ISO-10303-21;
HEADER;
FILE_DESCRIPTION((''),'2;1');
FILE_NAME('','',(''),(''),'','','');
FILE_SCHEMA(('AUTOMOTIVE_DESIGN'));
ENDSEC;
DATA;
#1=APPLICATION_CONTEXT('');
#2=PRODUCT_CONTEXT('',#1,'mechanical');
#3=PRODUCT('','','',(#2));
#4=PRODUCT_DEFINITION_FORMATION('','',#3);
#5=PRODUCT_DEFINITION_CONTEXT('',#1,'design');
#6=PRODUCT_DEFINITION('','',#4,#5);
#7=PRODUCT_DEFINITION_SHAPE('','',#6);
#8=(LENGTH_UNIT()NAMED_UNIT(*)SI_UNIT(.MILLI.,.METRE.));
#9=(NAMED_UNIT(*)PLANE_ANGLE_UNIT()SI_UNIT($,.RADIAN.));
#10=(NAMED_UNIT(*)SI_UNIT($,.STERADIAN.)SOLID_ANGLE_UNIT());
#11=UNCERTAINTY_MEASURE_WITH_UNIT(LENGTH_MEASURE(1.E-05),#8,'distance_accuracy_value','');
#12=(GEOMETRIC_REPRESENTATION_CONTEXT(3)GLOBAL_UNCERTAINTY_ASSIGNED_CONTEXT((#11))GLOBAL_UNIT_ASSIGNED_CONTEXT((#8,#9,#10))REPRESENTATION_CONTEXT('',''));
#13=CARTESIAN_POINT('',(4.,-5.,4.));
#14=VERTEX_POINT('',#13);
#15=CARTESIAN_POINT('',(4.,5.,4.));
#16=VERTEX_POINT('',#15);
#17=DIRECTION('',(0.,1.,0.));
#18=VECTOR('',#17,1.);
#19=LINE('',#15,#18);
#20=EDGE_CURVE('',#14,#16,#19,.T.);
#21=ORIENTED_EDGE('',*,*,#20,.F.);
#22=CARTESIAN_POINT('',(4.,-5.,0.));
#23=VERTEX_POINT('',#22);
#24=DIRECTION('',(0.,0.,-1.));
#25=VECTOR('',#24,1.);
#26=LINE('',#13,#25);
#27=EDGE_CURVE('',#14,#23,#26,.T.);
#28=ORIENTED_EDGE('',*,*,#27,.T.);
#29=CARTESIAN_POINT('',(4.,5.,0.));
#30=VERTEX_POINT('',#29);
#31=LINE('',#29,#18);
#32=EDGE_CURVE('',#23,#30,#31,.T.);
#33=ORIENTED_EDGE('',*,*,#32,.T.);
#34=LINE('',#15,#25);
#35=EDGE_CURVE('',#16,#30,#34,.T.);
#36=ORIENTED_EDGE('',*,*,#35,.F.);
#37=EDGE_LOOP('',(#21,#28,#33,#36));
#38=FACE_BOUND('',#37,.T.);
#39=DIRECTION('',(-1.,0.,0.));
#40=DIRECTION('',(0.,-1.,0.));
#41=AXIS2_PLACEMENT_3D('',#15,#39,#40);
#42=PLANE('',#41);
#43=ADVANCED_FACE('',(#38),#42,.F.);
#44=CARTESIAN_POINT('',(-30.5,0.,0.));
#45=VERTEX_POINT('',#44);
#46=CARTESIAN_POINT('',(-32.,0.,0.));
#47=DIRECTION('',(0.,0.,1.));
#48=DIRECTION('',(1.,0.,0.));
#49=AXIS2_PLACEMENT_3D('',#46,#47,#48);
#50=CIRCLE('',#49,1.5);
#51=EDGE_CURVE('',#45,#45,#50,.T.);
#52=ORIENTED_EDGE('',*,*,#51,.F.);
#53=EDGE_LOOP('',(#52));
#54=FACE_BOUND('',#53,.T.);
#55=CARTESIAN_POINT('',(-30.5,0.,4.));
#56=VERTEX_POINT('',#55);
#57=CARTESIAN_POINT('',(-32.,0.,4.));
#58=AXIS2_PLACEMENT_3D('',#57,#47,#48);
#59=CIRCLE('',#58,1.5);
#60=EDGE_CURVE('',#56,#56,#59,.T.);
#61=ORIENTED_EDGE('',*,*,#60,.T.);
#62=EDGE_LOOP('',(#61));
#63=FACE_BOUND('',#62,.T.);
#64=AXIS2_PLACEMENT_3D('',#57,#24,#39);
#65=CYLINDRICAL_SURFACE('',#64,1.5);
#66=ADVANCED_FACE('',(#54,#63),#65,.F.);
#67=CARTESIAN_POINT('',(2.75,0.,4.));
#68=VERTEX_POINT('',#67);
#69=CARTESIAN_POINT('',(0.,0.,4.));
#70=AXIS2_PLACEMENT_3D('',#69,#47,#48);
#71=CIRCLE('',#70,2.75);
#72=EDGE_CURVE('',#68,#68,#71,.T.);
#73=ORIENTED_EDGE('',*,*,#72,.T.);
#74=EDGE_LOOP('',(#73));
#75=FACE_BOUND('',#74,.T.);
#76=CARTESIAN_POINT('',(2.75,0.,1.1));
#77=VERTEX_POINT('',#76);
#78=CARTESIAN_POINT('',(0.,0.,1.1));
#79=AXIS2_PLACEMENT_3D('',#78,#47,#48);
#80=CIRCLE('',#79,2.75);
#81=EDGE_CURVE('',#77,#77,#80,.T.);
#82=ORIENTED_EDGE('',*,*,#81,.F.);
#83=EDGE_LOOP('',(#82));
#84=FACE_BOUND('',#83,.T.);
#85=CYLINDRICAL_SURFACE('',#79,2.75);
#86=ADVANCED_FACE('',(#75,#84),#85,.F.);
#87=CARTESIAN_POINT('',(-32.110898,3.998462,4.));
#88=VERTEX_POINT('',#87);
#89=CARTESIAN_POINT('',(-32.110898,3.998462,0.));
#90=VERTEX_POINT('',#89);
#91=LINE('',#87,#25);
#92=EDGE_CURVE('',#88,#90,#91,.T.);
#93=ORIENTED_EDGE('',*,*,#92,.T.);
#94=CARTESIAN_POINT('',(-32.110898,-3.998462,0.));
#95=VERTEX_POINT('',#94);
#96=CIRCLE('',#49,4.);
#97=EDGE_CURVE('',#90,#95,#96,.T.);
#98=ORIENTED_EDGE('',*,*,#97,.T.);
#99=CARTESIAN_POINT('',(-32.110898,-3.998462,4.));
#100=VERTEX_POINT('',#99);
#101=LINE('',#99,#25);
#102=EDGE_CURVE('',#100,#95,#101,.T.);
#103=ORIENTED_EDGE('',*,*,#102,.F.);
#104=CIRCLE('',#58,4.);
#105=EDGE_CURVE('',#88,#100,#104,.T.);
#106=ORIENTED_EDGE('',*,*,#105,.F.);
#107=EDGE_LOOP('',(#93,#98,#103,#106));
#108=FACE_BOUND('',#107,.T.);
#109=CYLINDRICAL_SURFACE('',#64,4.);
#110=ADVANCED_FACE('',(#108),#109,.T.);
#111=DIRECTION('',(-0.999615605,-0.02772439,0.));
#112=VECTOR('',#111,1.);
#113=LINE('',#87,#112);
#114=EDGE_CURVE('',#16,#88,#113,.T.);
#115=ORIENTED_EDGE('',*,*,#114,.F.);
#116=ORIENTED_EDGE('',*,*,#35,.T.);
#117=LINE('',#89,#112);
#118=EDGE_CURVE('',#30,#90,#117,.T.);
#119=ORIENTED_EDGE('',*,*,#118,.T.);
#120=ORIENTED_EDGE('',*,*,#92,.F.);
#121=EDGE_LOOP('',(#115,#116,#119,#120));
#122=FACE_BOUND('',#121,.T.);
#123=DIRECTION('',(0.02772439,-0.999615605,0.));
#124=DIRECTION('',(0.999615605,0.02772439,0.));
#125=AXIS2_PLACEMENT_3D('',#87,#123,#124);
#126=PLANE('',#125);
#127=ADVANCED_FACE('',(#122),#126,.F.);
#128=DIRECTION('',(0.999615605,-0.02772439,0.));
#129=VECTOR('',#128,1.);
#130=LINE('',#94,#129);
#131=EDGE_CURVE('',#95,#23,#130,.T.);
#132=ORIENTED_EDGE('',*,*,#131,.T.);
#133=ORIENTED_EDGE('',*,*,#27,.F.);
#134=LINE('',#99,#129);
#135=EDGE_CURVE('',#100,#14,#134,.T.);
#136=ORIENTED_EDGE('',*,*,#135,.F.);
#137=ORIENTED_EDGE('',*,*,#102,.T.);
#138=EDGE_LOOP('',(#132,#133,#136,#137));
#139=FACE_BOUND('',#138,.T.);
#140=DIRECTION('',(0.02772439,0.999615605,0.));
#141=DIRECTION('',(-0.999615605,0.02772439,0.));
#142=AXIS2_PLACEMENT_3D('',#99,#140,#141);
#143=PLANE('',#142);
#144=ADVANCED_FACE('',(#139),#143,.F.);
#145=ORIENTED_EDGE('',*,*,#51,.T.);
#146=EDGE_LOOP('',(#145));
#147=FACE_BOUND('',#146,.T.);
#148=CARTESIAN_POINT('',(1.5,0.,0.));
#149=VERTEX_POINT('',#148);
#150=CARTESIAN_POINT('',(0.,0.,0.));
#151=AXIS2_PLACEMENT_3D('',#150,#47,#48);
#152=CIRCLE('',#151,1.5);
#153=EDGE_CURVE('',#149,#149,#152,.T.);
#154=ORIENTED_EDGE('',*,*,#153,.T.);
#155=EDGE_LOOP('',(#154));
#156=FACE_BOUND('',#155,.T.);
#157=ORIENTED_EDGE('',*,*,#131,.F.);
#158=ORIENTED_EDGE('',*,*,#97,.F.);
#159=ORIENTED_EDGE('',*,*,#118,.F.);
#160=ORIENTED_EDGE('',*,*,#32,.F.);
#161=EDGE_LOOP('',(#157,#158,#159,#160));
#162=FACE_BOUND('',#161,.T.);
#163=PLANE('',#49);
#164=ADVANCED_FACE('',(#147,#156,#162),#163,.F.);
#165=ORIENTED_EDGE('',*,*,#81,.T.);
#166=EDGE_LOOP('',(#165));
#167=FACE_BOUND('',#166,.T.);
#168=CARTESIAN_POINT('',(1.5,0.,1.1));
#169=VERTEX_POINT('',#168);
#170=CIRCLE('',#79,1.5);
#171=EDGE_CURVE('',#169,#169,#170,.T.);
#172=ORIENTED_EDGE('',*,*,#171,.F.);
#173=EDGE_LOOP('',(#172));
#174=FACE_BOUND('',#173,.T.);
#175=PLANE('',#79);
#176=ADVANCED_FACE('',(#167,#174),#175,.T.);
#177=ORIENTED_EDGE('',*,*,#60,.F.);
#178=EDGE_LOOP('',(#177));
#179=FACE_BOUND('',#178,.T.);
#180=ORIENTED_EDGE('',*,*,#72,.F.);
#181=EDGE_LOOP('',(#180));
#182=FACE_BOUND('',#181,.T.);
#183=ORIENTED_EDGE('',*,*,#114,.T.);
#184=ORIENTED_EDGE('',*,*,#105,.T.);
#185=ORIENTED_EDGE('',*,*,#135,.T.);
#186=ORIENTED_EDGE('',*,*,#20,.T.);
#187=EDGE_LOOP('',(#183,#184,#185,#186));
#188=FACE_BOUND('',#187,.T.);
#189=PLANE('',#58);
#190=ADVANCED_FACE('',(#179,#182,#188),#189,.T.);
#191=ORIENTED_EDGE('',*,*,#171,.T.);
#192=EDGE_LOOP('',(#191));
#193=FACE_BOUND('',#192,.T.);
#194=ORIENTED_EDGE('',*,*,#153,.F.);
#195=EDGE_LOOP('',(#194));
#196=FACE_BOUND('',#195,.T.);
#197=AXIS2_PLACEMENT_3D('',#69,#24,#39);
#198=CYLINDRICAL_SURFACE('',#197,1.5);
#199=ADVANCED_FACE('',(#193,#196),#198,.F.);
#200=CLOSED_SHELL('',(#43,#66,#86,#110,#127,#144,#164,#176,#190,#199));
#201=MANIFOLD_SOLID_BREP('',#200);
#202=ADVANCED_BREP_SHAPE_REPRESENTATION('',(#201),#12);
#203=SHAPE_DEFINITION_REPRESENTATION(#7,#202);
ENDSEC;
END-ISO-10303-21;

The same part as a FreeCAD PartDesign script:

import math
import FreeCAD as App
import Part
import Sketcher

V = App.Vector

doc = App.newDocument("Part")
body = doc.addObject("PartDesign::Body", "Body")

# Sketch on XY plane
sketch1 = body.newObject("Sketcher::SketchObject", "Sketch")
sketch1.AttachmentSupport = (doc.getObject("XY_Plane"), [""])
sketch1.MapMode = "FlatFace"
sketch1.addGeometry([
    Part.LineSegment(V(4, 5, 0), V(-32.1, 4, 0)),  # 0
    Part.ArcOfCircle(Part.Circle(V(-32, 0, 0), V(0, 0, 1), 4), math.radians(92), math.radians(268)),  # 1
    Part.LineSegment(V(-32.1, -4, 0), V(4, -5, 0)),  # 2
    Part.LineSegment(V(4, -5, 0), V(4, 5, 0)),  # 3
    Part.Circle(V(0, 0, 0), V(0, 0, 1), 1.5),  # 4
    Part.Circle(V(-32, 0, 0), V(0, 0, 1), 1.5),  # 5
], False)
sketch1.addConstraint([
    Sketcher.Constraint("Tangent", 0, 2, 1, 1),
    Sketcher.Constraint("Tangent", 1, 2, 2, 1),
    Sketcher.Constraint("Coincident", 2, 2, 3, 1),
    Sketcher.Constraint("Coincident", 3, 2, 0, 1),
    Sketcher.Constraint("Vertical", 3),
    Sketcher.Constraint("Coincident", 4, 3, -1, 1),
    Sketcher.Constraint("Coincident", 5, 3, 1, 3),
    Sketcher.Constraint("Equal", 4, 5),
    Sketcher.Constraint("Symmetric", 0, 2, 1, 2, -1),
    Sketcher.Constraint("Diameter", 4, 3.0),
    Sketcher.Constraint("Radius", 1, 4.0),
    Sketcher.Constraint("DistanceY", 3, 1, 3, 2, 10.0),
    Sketcher.Constraint("DistanceX", 1, 3, -1, 1, 32.0),
    Sketcher.Constraint("DistanceX", -1, 1, 2, 2, 4.0),
])
pad1 = body.newObject("PartDesign::Pad", "Pad")
pad1.Profile = sketch1
pad1.Length = 4

# Sketch on XY plane
sketch2 = body.newObject("Sketcher::SketchObject", "Sketch001")
sketch2.AttachmentSupport = (doc.getObject("XY_Plane"), [""])
sketch2.MapMode = "FlatFace"
sketch2.AttachmentOffset = App.Placement(V(0, 0, 4), App.Rotation())
sketch2.addGeometry(Part.Circle(V(0, 0, 0), V(0, 0, 1), 2.8), False)
sketch2.addConstraint([
    Sketcher.Constraint("Coincident", 0, 3, -1, 1),
    Sketcher.Constraint("Diameter", 0, 5.5),
])
pocket1 = body.newObject("PartDesign::Pocket", "Pocket")
pocket1.Profile = sketch2
pocket1.Length = 2.9

doc.recompute()
